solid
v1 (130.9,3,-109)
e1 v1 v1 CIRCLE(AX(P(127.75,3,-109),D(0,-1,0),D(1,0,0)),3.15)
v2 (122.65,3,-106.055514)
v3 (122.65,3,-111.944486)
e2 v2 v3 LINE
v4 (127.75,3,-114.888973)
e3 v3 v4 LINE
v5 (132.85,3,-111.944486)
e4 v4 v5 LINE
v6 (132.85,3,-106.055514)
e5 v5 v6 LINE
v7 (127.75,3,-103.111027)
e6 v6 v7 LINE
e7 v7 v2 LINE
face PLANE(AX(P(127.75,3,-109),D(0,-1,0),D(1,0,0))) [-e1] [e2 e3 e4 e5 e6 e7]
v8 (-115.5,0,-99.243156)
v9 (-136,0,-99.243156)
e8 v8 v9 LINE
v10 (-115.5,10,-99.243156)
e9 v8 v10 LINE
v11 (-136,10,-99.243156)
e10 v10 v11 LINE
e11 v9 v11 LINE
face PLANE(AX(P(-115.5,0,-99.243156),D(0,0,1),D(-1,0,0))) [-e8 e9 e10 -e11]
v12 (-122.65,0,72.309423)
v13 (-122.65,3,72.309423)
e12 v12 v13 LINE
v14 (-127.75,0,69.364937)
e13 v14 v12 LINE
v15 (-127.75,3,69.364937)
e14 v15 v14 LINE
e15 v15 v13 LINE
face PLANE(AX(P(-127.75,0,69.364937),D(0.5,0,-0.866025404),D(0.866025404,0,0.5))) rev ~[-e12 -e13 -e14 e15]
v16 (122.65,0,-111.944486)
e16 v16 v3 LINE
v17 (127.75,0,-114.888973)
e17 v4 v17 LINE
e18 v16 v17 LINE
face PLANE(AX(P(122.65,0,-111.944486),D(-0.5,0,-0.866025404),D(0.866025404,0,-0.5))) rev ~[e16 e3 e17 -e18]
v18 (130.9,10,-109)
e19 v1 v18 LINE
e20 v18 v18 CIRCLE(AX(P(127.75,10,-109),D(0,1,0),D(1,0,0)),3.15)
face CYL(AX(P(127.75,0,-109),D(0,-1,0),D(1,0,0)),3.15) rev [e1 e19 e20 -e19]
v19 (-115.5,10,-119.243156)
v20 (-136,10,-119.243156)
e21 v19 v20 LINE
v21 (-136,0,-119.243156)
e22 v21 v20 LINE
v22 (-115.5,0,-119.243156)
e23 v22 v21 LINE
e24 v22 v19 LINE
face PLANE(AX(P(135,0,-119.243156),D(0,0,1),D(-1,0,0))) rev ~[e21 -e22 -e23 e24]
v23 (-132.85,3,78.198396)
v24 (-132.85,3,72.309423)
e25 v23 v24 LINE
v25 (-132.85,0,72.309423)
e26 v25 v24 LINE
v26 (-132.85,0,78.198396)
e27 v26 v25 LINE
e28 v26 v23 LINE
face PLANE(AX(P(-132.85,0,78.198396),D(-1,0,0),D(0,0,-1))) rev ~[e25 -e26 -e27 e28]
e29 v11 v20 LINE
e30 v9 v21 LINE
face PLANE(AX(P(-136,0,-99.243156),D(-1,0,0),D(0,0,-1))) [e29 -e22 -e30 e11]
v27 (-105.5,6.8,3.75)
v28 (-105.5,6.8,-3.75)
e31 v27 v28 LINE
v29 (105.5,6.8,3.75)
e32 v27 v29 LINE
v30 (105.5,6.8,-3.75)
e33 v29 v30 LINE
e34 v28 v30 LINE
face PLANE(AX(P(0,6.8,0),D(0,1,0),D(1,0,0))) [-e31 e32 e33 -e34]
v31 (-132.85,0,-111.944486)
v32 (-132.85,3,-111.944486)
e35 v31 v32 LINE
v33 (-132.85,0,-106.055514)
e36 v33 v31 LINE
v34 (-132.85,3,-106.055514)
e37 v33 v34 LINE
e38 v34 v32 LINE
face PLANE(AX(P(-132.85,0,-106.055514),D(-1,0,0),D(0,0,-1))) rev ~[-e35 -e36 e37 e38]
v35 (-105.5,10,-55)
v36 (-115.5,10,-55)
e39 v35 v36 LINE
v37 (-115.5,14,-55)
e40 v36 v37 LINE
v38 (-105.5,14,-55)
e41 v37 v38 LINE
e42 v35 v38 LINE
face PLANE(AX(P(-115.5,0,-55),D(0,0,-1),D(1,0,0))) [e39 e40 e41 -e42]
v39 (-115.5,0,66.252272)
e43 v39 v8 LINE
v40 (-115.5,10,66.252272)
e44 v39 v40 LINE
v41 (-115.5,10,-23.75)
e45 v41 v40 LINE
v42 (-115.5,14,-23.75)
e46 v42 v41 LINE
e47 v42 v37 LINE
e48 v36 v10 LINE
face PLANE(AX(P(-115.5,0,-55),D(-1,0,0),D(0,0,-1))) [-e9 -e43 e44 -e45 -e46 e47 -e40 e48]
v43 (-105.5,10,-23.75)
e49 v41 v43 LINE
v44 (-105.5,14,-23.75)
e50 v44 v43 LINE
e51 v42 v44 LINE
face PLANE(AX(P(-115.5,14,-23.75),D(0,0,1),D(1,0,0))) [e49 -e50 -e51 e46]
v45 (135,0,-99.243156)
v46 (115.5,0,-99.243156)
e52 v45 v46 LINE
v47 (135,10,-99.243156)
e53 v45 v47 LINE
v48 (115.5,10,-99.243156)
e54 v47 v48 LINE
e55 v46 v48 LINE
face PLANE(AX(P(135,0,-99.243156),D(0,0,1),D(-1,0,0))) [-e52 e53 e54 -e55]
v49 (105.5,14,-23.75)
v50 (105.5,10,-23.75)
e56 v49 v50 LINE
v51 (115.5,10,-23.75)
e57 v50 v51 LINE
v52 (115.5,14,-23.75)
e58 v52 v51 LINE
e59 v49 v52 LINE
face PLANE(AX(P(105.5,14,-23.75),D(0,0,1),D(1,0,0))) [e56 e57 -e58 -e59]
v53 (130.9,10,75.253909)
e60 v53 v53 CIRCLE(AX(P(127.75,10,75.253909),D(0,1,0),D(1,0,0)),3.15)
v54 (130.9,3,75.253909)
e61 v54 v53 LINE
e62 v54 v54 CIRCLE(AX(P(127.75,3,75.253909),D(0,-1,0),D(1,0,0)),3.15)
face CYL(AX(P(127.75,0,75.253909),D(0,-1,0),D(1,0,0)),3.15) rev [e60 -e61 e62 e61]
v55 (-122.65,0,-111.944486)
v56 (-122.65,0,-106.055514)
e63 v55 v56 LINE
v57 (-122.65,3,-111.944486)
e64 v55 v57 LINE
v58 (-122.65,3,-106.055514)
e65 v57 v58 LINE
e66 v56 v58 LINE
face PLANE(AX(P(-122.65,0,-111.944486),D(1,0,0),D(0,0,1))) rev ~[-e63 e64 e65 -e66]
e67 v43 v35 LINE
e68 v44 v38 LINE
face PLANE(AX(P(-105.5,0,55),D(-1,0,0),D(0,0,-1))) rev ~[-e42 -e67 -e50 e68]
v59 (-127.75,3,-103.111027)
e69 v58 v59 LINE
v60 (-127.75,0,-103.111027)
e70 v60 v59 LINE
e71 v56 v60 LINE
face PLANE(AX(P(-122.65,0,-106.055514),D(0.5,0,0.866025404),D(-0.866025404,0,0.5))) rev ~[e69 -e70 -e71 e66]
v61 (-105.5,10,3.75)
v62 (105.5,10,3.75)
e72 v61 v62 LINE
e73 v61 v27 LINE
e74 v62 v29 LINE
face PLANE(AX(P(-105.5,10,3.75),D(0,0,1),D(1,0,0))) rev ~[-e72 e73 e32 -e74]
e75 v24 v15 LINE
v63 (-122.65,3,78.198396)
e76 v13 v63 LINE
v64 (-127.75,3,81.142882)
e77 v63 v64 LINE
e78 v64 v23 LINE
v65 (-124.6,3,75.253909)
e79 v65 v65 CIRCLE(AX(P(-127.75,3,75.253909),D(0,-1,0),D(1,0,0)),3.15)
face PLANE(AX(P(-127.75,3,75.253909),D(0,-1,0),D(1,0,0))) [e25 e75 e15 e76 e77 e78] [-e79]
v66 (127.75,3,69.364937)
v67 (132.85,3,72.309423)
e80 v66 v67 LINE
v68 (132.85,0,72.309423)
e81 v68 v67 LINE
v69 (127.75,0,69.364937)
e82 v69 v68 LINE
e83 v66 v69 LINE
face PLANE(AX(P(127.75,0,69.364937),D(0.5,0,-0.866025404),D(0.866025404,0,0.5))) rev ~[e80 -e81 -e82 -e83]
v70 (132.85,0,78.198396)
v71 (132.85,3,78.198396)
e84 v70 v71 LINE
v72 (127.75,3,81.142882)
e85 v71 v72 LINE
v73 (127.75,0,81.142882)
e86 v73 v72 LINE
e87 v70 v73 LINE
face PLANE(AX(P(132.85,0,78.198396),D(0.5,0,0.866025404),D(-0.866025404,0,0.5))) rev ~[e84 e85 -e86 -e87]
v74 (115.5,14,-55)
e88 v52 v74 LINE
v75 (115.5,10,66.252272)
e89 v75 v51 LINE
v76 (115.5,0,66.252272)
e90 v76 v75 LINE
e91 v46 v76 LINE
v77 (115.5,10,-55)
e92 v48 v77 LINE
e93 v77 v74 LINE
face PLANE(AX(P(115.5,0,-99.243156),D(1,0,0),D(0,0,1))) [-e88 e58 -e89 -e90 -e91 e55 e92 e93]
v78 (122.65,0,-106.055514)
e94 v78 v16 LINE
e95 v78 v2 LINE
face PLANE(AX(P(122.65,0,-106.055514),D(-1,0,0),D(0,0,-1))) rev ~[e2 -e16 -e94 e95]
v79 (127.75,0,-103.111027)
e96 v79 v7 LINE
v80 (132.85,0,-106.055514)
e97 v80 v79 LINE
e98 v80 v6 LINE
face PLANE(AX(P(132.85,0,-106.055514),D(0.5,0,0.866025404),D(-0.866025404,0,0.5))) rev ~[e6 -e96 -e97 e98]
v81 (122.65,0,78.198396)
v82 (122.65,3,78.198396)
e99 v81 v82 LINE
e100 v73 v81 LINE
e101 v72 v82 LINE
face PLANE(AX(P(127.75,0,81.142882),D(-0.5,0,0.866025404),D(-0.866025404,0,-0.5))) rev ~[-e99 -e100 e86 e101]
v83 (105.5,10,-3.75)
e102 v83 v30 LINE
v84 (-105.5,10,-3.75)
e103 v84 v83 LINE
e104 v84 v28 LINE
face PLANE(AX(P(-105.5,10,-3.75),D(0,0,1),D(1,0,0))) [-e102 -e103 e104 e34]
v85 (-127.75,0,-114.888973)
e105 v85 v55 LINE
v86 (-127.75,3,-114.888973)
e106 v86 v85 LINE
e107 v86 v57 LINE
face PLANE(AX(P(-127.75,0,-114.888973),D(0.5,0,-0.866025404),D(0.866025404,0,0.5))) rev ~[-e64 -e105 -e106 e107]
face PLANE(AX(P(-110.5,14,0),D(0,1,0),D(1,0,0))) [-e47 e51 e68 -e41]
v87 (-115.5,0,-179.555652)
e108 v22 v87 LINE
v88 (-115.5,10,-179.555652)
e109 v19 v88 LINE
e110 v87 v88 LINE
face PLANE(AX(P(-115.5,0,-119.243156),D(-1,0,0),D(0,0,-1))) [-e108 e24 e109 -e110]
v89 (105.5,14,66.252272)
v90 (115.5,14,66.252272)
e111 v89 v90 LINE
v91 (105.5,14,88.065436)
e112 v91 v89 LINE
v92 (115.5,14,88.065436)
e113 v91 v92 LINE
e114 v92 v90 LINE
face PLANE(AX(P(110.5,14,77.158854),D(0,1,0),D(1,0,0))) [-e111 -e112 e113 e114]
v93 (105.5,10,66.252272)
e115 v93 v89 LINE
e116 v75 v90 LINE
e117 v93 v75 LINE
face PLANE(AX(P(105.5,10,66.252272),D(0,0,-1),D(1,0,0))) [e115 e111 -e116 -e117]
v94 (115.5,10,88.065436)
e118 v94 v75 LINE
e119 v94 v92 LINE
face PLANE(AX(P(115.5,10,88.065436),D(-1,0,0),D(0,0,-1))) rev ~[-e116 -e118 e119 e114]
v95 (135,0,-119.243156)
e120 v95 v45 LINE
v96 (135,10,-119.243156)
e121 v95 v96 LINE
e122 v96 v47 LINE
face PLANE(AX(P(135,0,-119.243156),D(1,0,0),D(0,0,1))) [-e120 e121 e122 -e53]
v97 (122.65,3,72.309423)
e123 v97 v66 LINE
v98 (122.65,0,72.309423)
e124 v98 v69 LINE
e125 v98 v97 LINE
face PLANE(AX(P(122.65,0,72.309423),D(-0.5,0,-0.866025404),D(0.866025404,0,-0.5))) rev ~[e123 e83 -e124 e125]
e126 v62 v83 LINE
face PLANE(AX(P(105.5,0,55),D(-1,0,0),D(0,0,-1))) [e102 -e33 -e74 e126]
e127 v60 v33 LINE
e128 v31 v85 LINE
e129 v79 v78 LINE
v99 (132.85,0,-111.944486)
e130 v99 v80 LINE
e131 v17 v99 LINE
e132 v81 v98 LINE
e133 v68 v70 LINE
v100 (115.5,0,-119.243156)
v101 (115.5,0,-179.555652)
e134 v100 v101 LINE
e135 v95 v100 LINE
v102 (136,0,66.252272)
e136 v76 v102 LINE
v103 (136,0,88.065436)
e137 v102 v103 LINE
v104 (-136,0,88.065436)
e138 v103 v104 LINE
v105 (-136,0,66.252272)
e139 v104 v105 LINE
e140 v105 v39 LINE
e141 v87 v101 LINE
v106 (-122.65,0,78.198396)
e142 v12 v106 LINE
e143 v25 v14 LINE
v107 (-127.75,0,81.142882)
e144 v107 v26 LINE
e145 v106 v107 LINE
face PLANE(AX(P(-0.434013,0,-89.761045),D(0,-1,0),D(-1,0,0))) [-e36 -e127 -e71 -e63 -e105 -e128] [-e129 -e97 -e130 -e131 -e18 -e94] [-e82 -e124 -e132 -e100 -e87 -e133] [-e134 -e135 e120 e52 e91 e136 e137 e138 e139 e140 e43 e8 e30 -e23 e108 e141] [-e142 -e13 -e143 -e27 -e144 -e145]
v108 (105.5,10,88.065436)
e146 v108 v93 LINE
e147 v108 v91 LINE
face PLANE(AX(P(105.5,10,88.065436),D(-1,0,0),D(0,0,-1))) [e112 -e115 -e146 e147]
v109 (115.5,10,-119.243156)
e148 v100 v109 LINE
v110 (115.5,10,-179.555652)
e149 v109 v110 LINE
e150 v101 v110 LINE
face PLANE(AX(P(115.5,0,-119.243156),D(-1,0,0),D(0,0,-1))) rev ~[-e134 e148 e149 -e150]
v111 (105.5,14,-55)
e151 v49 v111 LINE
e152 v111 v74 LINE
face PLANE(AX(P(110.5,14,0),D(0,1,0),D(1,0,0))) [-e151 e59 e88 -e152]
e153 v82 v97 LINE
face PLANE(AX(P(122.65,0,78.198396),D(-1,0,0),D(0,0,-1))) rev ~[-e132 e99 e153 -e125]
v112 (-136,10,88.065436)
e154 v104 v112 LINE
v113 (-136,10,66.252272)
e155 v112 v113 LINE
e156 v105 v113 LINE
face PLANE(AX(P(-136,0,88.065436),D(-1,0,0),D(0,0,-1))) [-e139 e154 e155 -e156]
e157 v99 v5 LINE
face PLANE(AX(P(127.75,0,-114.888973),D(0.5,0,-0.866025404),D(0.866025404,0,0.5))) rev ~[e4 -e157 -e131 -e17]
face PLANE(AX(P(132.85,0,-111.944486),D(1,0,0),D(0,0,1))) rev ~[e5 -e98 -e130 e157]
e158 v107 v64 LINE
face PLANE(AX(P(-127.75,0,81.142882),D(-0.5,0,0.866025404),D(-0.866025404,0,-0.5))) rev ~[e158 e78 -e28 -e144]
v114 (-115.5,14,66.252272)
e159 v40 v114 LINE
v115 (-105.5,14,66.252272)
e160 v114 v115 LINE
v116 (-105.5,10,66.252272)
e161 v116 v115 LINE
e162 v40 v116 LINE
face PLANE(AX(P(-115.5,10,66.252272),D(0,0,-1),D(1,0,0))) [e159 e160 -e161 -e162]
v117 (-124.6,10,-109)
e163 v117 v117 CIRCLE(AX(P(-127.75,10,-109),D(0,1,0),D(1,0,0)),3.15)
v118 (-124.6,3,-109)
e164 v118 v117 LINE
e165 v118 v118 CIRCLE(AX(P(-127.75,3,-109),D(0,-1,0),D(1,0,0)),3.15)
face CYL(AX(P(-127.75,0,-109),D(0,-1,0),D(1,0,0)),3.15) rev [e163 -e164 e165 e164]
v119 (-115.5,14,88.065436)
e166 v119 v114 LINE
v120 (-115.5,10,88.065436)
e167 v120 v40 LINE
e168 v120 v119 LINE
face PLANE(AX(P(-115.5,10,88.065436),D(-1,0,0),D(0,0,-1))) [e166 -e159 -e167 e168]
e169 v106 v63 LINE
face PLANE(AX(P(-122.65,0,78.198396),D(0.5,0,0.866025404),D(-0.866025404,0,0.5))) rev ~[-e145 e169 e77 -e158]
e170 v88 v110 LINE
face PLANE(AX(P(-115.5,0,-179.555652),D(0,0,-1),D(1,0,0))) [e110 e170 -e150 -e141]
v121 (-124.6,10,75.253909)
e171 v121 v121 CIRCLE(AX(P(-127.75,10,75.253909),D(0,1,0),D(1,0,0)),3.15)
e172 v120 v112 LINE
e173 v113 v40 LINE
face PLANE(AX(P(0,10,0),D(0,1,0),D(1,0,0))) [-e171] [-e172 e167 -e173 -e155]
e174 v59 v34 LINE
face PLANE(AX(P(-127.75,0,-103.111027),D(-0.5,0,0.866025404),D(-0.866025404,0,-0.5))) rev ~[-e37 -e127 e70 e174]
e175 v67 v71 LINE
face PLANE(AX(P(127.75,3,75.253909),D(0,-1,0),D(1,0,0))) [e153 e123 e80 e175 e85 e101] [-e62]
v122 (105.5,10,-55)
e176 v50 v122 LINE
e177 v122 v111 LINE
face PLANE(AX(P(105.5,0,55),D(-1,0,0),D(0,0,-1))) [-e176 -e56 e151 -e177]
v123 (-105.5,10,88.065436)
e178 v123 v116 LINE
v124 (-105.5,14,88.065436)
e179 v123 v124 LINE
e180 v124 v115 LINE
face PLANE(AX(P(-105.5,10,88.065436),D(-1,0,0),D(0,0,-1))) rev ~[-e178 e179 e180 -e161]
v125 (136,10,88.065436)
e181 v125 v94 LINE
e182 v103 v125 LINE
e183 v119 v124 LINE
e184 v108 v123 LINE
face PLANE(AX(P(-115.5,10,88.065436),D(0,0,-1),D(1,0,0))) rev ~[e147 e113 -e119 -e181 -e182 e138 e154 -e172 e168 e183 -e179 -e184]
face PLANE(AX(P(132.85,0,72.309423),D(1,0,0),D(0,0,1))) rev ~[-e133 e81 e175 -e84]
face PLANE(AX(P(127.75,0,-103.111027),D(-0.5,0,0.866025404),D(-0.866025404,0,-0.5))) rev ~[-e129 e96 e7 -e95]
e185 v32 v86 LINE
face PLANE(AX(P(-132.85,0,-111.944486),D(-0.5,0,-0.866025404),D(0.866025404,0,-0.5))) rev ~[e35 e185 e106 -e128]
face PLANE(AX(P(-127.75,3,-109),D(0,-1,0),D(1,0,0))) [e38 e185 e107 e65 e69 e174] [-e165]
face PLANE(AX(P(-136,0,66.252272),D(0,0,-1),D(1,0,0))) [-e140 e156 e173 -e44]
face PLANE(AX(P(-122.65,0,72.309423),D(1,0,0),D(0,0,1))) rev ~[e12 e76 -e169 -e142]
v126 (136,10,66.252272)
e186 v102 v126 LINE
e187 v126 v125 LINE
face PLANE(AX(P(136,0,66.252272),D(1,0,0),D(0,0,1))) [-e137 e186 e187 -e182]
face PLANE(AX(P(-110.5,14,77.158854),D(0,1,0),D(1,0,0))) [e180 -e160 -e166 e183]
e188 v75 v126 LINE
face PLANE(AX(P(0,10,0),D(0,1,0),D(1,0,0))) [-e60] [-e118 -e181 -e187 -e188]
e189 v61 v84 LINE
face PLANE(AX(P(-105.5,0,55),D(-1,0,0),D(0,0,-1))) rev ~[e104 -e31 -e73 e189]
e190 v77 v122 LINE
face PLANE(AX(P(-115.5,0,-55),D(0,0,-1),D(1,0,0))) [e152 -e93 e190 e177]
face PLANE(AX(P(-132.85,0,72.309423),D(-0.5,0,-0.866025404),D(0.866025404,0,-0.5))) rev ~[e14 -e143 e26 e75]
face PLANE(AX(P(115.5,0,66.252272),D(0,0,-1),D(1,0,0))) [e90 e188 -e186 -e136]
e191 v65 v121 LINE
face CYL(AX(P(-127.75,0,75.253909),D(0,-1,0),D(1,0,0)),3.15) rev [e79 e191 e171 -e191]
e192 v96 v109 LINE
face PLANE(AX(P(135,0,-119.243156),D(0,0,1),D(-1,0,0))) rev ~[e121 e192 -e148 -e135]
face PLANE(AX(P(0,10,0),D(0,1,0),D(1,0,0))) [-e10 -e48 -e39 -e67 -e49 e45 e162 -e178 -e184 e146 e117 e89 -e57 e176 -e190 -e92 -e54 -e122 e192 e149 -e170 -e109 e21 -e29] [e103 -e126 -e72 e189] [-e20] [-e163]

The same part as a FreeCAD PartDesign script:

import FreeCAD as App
import Part
import Sketcher
from FreeCAD import Vector
Q = App.Units.Quantity

doc = App.newDocument("Part")
params = doc.addObject("Spreadsheet::Sheet", "Params")
for row, (alias, value) in enumerate([
    ("sketch1_width", "211 mm"),
    ("sketch1_height", "110 mm"),
    ("pad1_length", "10 mm"),
    ("sketch2_width", "10 mm"),
    ("sketch2_height", "110 mm"),
    ("pad2_length", "14 mm"),
    ("sketch3_width", "211 mm"),
    ("sketch3_height", "7.5 mm"),
    ("pocket1_length", "3.2 mm"),
    ("sketch4_diameter", "6.3 mm"),
    ("sketch4_width", "271 mm"),
    ("sketch4_width2", "231 mm"),
    ("sketch4_width3", "272 mm"),
    ("sketch4_height", "20 mm"),
    ("pad3_length", "10 mm"),
    ("pocket2_length", "2 mm"),
    ("sketch6_width", "10 mm"),
    ("pad4_length", "4 mm"),
    ("sketch7_width", "10 mm"),
    ("sketch7_height", "78.75 mm"),
    ("pocket3_length", "4 mm"),
    ("pocket4_length", "3 mm"),
    ("sketch9_width", "231 mm"),
    ("pad5_length", "10 mm"),
], start=1):
    params.set(f"A{row}", alias)
    params.set(f"B{row}", "=" + value)
    params.setAlias(f"B{row}", alias)

body = doc.addObject("PartDesign::Body", "Body")

# Sketch on XZ plane
sketch1 = body.newObject("Sketcher::SketchObject", "Sketch")
sketch1.AttachmentSupport = (doc.getObject("XZ_Plane"), [""])
sketch1.MapMode = "FlatFace"
sketch1.addGeometry([
    Part.LineSegment(Vector(-106, -55, 0), Vector(-106, 55, 0)),
    Part.LineSegment(Vector(-106, 55, 0), Vector(106, 55, 0)),
    Part.LineSegment(Vector(106, 55, 0), Vector(106, -55, 0)),
    Part.LineSegment(Vector(106, -55, 0), Vector(-106, -55, 0)),
], False)
sketch1.addConstraint([
    Sketcher.Constraint("Coincident", 0, 2, 1, 1),
    Sketcher.Constraint("Coincident", 1, 2, 2, 1),
    Sketcher.Constraint("Coincident", 2, 2, 3, 1),
    Sketcher.Constraint("Coincident", 3, 2, 0, 1),
    Sketcher.Constraint("Vertical", 0),
    Sketcher.Constraint("Horizontal", 1),
    Sketcher.Constraint("Vertical", 2),
    Sketcher.Constraint("Horizontal", 3),
    Sketcher.Constraint("Symmetric", 0, 2, 2, 2, -1, 1),
    Sketcher.Constraint("DistanceX", 1, 1, 1, 2, 211.0),
    Sketcher.Constraint("DistanceY", 0, 1, 0, 2, 110.0),
])
sketch1.setExpression("Constraints[9]", "Params.sketch1_width")
sketch1.setExpression("Constraints[10]", "Params.sketch1_height")
pad1 = body.newObject("PartDesign::Pad", "Pad")
pad1.Profile = sketch1
pad1.setExpression("Length", "Params.pad1_length")
pad1.Reversed = True

# Sketch on XZ plane
sketch2 = body.newObject("Sketcher::SketchObject", "Sketch001")
sketch2.AttachmentSupport = (doc.getObject("XZ_Plane"), [""])
sketch2.MapMode = "FlatFace"
sketch2.addGeometry([
    Part.LineSegment(Vector(-116, -55, 0), Vector(-116, 55, 0)),  # 0
    Part.LineSegment(Vector(-116, 55, 0), Vector(-106, 55, 0)),  # 1
    Part.LineSegment(Vector(-106, 55, 0), Vector(-106, -55, 0)),  # 2
    Part.LineSegment(Vector(-106, -55, 0), Vector(-116, -55, 0)),  # 3
    Part.LineSegment(Vector(106, -55, 0), Vector(106, 55, 0)),  # 4
    Part.LineSegment(Vector(106, 55, 0), Vector(116, 55, 0)),  # 5
    Part.LineSegment(Vector(116, 55, 0), Vector(116, -55, 0)),  # 6
    Part.LineSegment(Vector(116, -55, 0), Vector(106, -55, 0)),  # 7
], False)
sketch2.addConstraint([
    Sketcher.Constraint("Coincident", 0, 2, 1, 1),
    Sketcher.Constraint("Coincident", 1, 2, 2, 1),
    Sketcher.Constraint("Coincident", 2, 2, 3, 1),
    Sketcher.Constraint("Coincident", 3, 2, 0, 1),
    Sketcher.Constraint("Coincident", 4, 2, 5, 1),
    Sketcher.Constraint("Coincident", 5, 2, 6, 1),
    Sketcher.Constraint("Coincident", 6, 2, 7, 1),
    Sketcher.Constraint("Coincident", 7, 2, 4, 1),
    Sketcher.Constraint("Vertical", 0),
    Sketcher.Constraint("Horizontal", 1),
    Sketcher.Constraint("Vertical", 2),
    Sketcher.Constraint("Horizontal", 3),
    Sketcher.Constraint("Vertical", 4),
    Sketcher.Constraint("Horizontal", 5),
    Sketcher.Constraint("Vertical", 6),
    Sketcher.Constraint("Horizontal", 7),
    Sketcher.Constraint("Symmetric", 2, 2, 4, 2, -1, 1),
    Sketcher.Constraint("Symmetric", 0, 2, 6, 2, -1, 1),
    Sketcher.Constraint("Horizontal", 1, 2, 4, 2),
    Sketcher.Constraint("DistanceX", 1, 1, 1, 2, 10.0),
    Sketcher.Constraint("DistanceY", 0, 1, 0, 2, 110.0),
    Sketcher.Constraint("DistanceX", 1, 2, 4, 2, 211.0),
])
sketch2.setExpression("Constraints[19]", "Params.sketch2_width")
sketch2.setExpression("Constraints[20]", "Params.sketch2_height")
pad2 = body.newObject("PartDesign::Pad", "Pad001")
pad2.Profile = sketch2
pad2.setExpression("Length", "Params.pad2_length")
pad2.Reversed = True

# Sketch on XZ plane
sketch3 = body.newObject("Sketcher::SketchObject", "Sketch002")
sketch3.AttachmentSupport = (doc.getObject("XZ_Plane"), [""])
sketch3.MapMode = "FlatFace"
sketch3.AttachmentOffset = App.Placement(Vector(0, 0, -10), App.Rotation())
sketch3.addGeometry([
    Part.LineSegment(Vector(-106, -4, 0), Vector(-106, 4, 0)),
    Part.LineSegment(Vector(-106, 4, 0), Vector(106, 4, 0)),
    Part.LineSegment(Vector(106, 4, 0), Vector(106, -4, 0)),
    Part.LineSegment(Vector(106, -4, 0), Vector(-106, -4, 0)),
], False)
sketch3.addConstraint([
    Sketcher.Constraint("Coincident", 0, 2, 1, 1),
    Sketcher.Constraint("Coincident", 1, 2, 2, 1),
    Sketcher.Constraint("Coincident", 2, 2, 3, 1),
    Sketcher.Constraint("Coincident", 3, 2, 0, 1),
    Sketcher.Constraint("Vertical", 0),
    Sketcher.Constraint("Horizontal", 1),
    Sketcher.Constraint("Vertical", 2),
    Sketcher.Constraint("Horizontal", 3),
    Sketcher.Constraint("Symmetric", 0, 2, 2, 2, -1, 1),
    Sketcher.Constraint("DistanceX", 1, 1, 1, 2, 211.0),
    Sketcher.Constraint("DistanceY", 0, 1, 0, 2, 7.5),
])
sketch3.setExpression("Constraints[9]", "Params.sketch3_width")
sketch3.setExpression("Constraints[10]", "Params.sketch3_height")
pocket1 = body.newObject("PartDesign::Pocket", "Pocket")
pocket1.Profile = sketch3
pocket1.setExpression("Length", "Params.pocket1_length")
pocket1.Reversed = True

# Sketch on XZ plane
sketch4 = body.newObject("Sketcher::SketchObject", "Sketch003")
sketch4.AttachmentSupport = (doc.getObject("XZ_Plane"), [""])
sketch4.MapMode = "FlatFace"
sketch4.addGeometry([
    Part.LineSegment(Vector(135, -119.2, 0), Vector(-136, -119.2, 0)),  # 0
    Part.LineSegment(Vector(-136, -119.2, 0), Vector(-136, -99.2, 0)),  # 1
    Part.LineSegment(Vector(-136, -99.2, 0), Vector(-115.5, -99.2, 0)),  # 2
    Part.LineSegment(Vector(-115.5, -99.2, 0), Vector(-115.5, -55, 0)),  # 3
    Part.LineSegment(Vector(-115.5, -55, 0), Vector(115.5, -55, 0)),  # 4
    Part.LineSegment(Vector(115.5, -55, 0), Vector(115.5, -99.2, 0)),  # 5
    Part.LineSegment(Vector(115.5, -99.2, 0), Vector(135, -99.2, 0)),  # 6
    Part.LineSegment(Vector(135, -99.2, 0), Vector(135, -119.2, 0)),  # 7
    Part.Circle(Vector(127.8, -109, 0), Vector(0, 0, 1), 3.1),  # 8
    Part.Circle(Vector(-127.8, -109, 0), Vector(0, 0, 1), 3.1),  # 9
    Part.LineSegment(Vector(-115.5, 66.3, 0), Vector(-136, 66.3, 0)),  # 10
    Part.LineSegment(Vector(-136, 66.3, 0), Vector(-136, 88.1, 0)),  # 11
    Part.LineSegment(Vector(-136, 88.1, 0), Vector(136, 88.1, 0)),  # 12
    Part.LineSegment(Vector(136, 88.1, 0), Vector(136, 66.3, 0)),  # 13
    Part.LineSegment(Vector(136, 66.3, 0), Vector(115.5, 66.3, 0)),  # 14
    Part.LineSegment(Vector(115.5, 66.3, 0), Vector(115.5, 55, 0)),  # 15
    Part.LineSegment(Vector(115.5, 55, 0), Vector(-115.5, 55, 0)),  # 16
    Part.LineSegment(Vector(-115.5, 55, 0), Vector(-115.5, 66.3, 0)),  # 17
    Part.Circle(Vector(127.8, 75.3, 0), Vector(0, 0, 1), 3.1),  # 18
    Part.Circle(Vector(-127.8, 75.3, 0), Vector(0, 0, 1), 3.1),  # 19
], False)
sketch4.addConstraint([
    Sketcher.Constraint("Coincident", 0, 2, 1, 1),
    Sketcher.Constraint("Coincident", 1, 2, 2, 1),
    Sketcher.Constraint("Coincident", 2, 2, 3, 1),
    Sketcher.Constraint("Coincident", 3, 2, 4, 1),
    Sketcher.Constraint("Coincident", 4, 2, 5, 1),
    Sketcher.Constraint("Coincident", 5, 2, 6, 1),
    Sketcher.Constraint("Coincident", 6, 2, 7, 1),
    Sketcher.Constraint("Coincident", 7, 2, 0, 1),
    Sketcher.Constraint("Coincident", 10, 2, 11, 1),
    Sketcher.Constraint("Coincident", 11, 2, 12, 1),
    Sketcher.Constraint("Coincident", 12, 2, 13, 1),
    Sketcher.Constraint("Coincident", 13, 2, 14, 1),
    Sketcher.Constraint("Coincident", 14, 2, 15, 1),
    Sketcher.Constraint("Coincident", 15, 2, 16, 1),
    Sketcher.Constraint("Coincident", 16, 2, 17, 1),
    Sketcher.Constraint("Coincident", 17, 2, 10, 1),
    Sketcher.Constraint("Horizontal", 0),
    Sketcher.Constraint("Vertical", 1),
    Sketcher.Constraint("Horizontal", 2),
    Sketcher.Constraint("Vertical", 3),
    Sketcher.Constraint("Horizontal", 4),
    Sketcher.Constraint("Vertical", 5),
    Sketcher.Constraint("Horizontal", 6),
    Sketcher.Constraint("Vertical", 7),
    Sketcher.Constraint("Horizontal", 10),
    Sketcher.Constraint("Vertical", 11),
    Sketcher.Constraint("Horizontal", 12),
    Sketcher.Constraint("Vertical", 13),
    Sketcher.Constraint("Horizontal", 14),
    Sketcher.Constraint("Vertical", 15),
    Sketcher.Constraint("Horizontal", 16),
    Sketcher.Constraint("Vertical", 17),
    Sketcher.Constraint("Equal", 8, 9),
    Sketcher.Constraint("Equal", 9, 18),
    Sketcher.Constraint("Equal", 18, 19),
    Sketcher.Constraint("Symmetric", 3, 2, 15, 2, -1, 1),
    Sketcher.Constraint("Symmetric", 8, 3, 9, 3, -2),
    Sketcher.Constraint("Symmetric", 18, 3, 19, 3, -2),
    Sketcher.Constraint("Symmetric", 2, 2, 5, 2, -2),
    Sketcher.Constraint("Symmetric", 10, 2, 13, 2, -2),
    Sketcher.Constraint("Vertical", 8, 3, 18, 3),
    Sketcher.Constraint("Vertical", 1, 2, 10, 2),
    Sketcher.Constraint("Vertical", 3, 2, 16, 2),
    Sketcher.Constraint("Diameter", 8, 6.3),
    Sketcher.Constraint("DistanceX", 0, 2, 0, 1, 271.0),
    Sketcher.Constraint("DistanceX", 4, 1, 4, 2, 231.0),
    Sketcher.Constraint("DistanceX", 12, 1, 12, 2, 272.0),
    Sketcher.Constraint("DistanceY", 1, 1, 1, 2, 20.0),
    Sketcher.Constraint("DistanceY", 8, 3, -1, 1, 109.0),
    Sketcher.Constraint("DistanceY", 3, 2, -1, 1, 55.0),
    Sketcher.Constraint("DistanceX", 9, 3, 8, 3, 255.5),
    Sketcher.Constraint("DistanceY", 15, 2, 15, 1, 11.252272),
    Sketcher.Constraint("DistanceY", 3, 1, 3, 2, 44.243156),
    Sketcher.Constraint("DistanceY", 11, 1, 11, 2, 21.813164),
    Sketcher.Constraint("DistanceY", -1, 1, 18, 3, 75.253909),
])
sketch4.setExpression("Constraints[43]", "Params.sketch4_diameter")
sketch4.setExpression("Constraints[44]", "Params.sketch4_width")
sketch4.setExpression("Constraints[45]", "Params.sketch4_width2")
sketch4.setExpression("Constraints[46]", "Params.sketch4_width3")
sketch4.setExpression("Constraints[47]", "Params.sketch4_height")
pad3 = body.newObject("PartDesign::Pad", "Pad002")
pad3.Profile = sketch4
pad3.setExpression("Length", "Params.pad3_length")
pad3.Reversed = True

# Sketch on XZ plane
sketch5 = body.newObject("Sketcher::SketchObject", "Sketch004")
sketch5.AttachmentSupport = (doc.getObject("XZ_Plane"), [""])
sketch5.MapMode = "FlatFace"
sketch5.addGeometry([
    Part.LineSegment(Vector(-128, 69, 0), Vector(-123, 72, 0)),  # 0
    Part.LineSegment(Vector(-123, 72, 0), Vector(-123, 78, 0)),  # 1
    Part.LineSegment(Vector(-123, 78, 0), Vector(-128, 81, 0)),  # 2
    Part.LineSegment(Vector(-128, 81, 0), Vector(-133, 78, 0)),  # 3
    Part.LineSegment(Vector(-133, 78, 0), Vector(-133, 72, 0)),  # 4
    Part.LineSegment(Vector(-133, 72, 0), Vector(-128, 69, 0)),  # 5
    Part.LineSegment(Vector(128, 69, 0), Vector(133, 72, 0)),  # 6
    Part.LineSegment(Vector(133, 72, 0), Vector(133, 78, 0)),  # 7
    Part.LineSegment(Vector(133, 78, 0), Vector(128, 81, 0)),  # 8
    Part.LineSegment(Vector(128, 81, 0), Vector(123, 78, 0)),  # 9
    Part.LineSegment(Vector(123, 78, 0), Vector(123, 72, 0)),  # 10
    Part.LineSegment(Vector(123, 72, 0), Vector(128, 69, 0)),  # 11
    Part.LineSegment(Vector(-128, -115, 0), Vector(-123, -112, 0)),  # 12
    Part.LineSegment(Vector(-123, -112, 0), Vector(-123, -106, 0)),  # 13
    Part.LineSegment(Vector(-123, -106, 0), Vector(-128, -103, 0)),  # 14
    Part.LineSegment(Vector(-128, -103, 0), Vector(-133, -106, 0)),  # 15
    Part.LineSegment(Vector(-133, -106, 0), Vector(-133, -112, 0)),  # 16
    Part.LineSegment(Vector(-133, -112, 0), Vector(-128, -115, 0)),  # 17
    Part.LineSegment(Vector(128, -115, 0), Vector(133, -112, 0)),  # 18
    Part.LineSegment(Vector(133, -112, 0), Vector(133, -106, 0)),  # 19
    Part.LineSegment(Vector(133, -106, 0), Vector(128, -103, 0)),  # 20
    Part.LineSegment(Vector(128, -103, 0), Vector(123, -106, 0)),  # 21
    Part.LineSegment(Vector(123, -106, 0), Vector(123, -112, 0)),  # 22
    Part.LineSegment(Vector(123, -112, 0), Vector(128, -115, 0)),  # 23
], False)
sketch5.addConstraint([
    Sketcher.Constraint("Coincident", 0, 2, 1, 1),
    Sketcher.Constraint("Coincident", 1, 2, 2, 1),
    Sketcher.Constraint("Coincident", 2, 2, 3, 1),
    Sketcher.Constraint("Coincident", 3, 2, 4, 1),
    Sketcher.Constraint("Coincident", 4, 2, 5, 1),
    Sketcher.Constraint("Coincident", 5, 2, 0, 1),
    Sketcher.Constraint("Coincident", 6, 2, 7, 1),
    Sketcher.Constraint("Coincident", 7, 2, 8, 1),
    Sketcher.Constraint("Coincident", 8, 2, 9, 1),
    Sketcher.Constraint("Coincident", 9, 2, 10, 1),
    Sketcher.Constraint("Coincident", 10, 2, 11, 1),
    Sketcher.Constraint("Coincident", 11, 2, 6, 1),
    Sketcher.Constraint("Coincident", 12, 2, 13, 1),
    Sketcher.Constraint("Coincident", 13, 2, 14, 1),
    Sketcher.Constraint("Coincident", 14, 2, 15, 1),
    Sketcher.Constraint("Coincident", 15, 2, 16, 1),
    Sketcher.Constraint("Coincident", 16, 2, 17, 1),
    Sketcher.Constraint("Coincident", 17, 2, 12, 1),
    Sketcher.Constraint("Coincident", 18, 2, 19, 1),
    Sketcher.Constraint("Coincident", 19, 2, 20, 1),
    Sketcher.Constraint("Coincident", 20, 2, 21, 1),
    Sketcher.Constraint("Coincident", 21, 2, 22, 1),
    Sketcher.Constraint("Coincident", 22, 2, 23, 1),
    Sketcher.Constraint("Coincident", 23, 2, 18, 1),
    Sketcher.Constraint("Vertical", 1),
    Sketcher.Constraint("Vertical", 4),
    Sketcher.Constraint("Vertical", 7),
    Sketcher.Constraint("Vertical", 10),
    Sketcher.Constraint("Vertical", 13),
    Sketcher.Constraint("Vertical", 16),
    Sketcher.Constraint("Vertical", 19),
    Sketcher.Constraint("Vertical", 22),
    Sketcher.Constraint("Symmetric", 4, 2, 6, 2, -2),
    Sketcher.Constraint("Symmetric", 2, 2, 8, 2, -2),
    Sketcher.Constraint("Symmetric", 1, 2, 9, 2, -2),
    Sketcher.Constraint("Symmetric", 5, 2, 11, 2, -2),
    Sketcher.Constraint("Symmetric", 16, 2, 18, 2, -2),
    Sketcher.Constraint("Symmetric", 14, 2, 20, 2, -2),
    Sketcher.Constraint("Symmetric", 13, 2, 21, 2, -2),
    Sketcher.Constraint("Symmetric", 17, 2, 23, 2, -2),
    Sketcher.Constraint("Parallel", 0, 3),
    Sketcher.Constraint("Parallel", 2, 5),
    Sketcher.Constraint("Parallel", 3, 6),
    Sketcher.Constraint("Parallel", 5, 8),
    Sketcher.Constraint("Parallel", 8, 11),
    Sketcher.Constraint("Parallel", 9, 12),
    Sketcher.Constraint("Parallel", 11, 14),
    Sketcher.Constraint("Parallel", 12, 15),
    Sketcher.Constraint("Parallel", 14, 17),
    Sketcher.Constraint("Parallel", 17, 20),
    Sketcher.Constraint("Parallel", 20, 23),
    Sketcher.Constraint("Horizontal", 1, 2, 3, 2),
    Sketcher.Constraint("Horizontal", 0, 2, 4, 2),
    Sketcher.Constraint("Horizontal", 13, 2, 15, 2),
    Sketcher.Constraint("Horizontal", 12, 2, 16, 2),
    Sketcher.Constraint("Vertical", 1, 2, 12, 2),
    Sketcher.Constraint("Vertical", 5, 2, 14, 2),
    Sketcher.Constraint("Equal", 10, 13),
    Sketcher.Constraint("Angle", 0, Q("30 deg")),
    Sketcher.Constraint("DistanceX", 2, 2, 1, 2, 5.1),
    Sketcher.Constraint("DistanceX", 0, 2, 6, 2, 255.5),
    Sketcher.Constraint("DistanceY", 1, 1, 1, 2, 5.888973),
    Sketcher.Constraint("DistanceY", 12, 2, 0, 2, 184.253909),
    Sketcher.Constraint("DistanceY", -1, 1, 0, 2, 72.309423),
])
pocket2 = body.newObject("PartDesign::Pocket", "Pocket001")
pocket2.Profile = sketch5
pocket2.setExpression("Length", "Params.pocket2_length")

# Sketch on XZ plane
sketch6 = body.newObject("Sketcher::SketchObject", "Sketch005")
sketch6.AttachmentSupport = (doc.getObject("XZ_Plane"), [""])
sketch6.MapMode = "FlatFace"
sketch6.AttachmentOffset = App.Placement(Vector(0, 0, -10), App.Rotation())
sketch6.addGeometry([
    Part.LineSegment(Vector(-116, 66, 0), Vector(-116, 88, 0)),  # 0
    Part.LineSegment(Vector(-116, 88, 0), Vector(-106, 88, 0)),  # 1
    Part.LineSegment(Vector(-106, 88, 0), Vector(-106, 66, 0)),  # 2
    Part.LineSegment(Vector(-106, 66, 0), Vector(-116, 66, 0)),  # 3
    Part.LineSegment(Vector(106, 66, 0), Vector(106, 88, 0)),  # 4
    Part.LineSegment(Vector(106, 88, 0), Vector(116, 88, 0)),  # 5
    Part.LineSegment(Vector(116, 88, 0), Vector(116, 66, 0)),  # 6
    Part.LineSegment(Vector(116, 66, 0), Vector(106, 66, 0)),  # 7
], False)
sketch6.addConstraint([
    Sketcher.Constraint("Coincident", 0, 2, 1, 1),
    Sketcher.Constraint("Coincident", 1, 2, 2, 1),
    Sketcher.Constraint("Coincident", 2, 2, 3, 1),
    Sketcher.Constraint("Coincident", 3, 2, 0, 1),
    Sketcher.Constraint("Coincident", 4, 2, 5, 1),
    Sketcher.Constraint("Coincident", 5, 2, 6, 1),
    Sketcher.Constraint("Coincident", 6, 2, 7, 1),
    Sketcher.Constraint("Coincident", 7, 2, 4, 1),
    Sketcher.Constraint("Vertical", 0),
    Sketcher.Constraint("Horizontal", 1),
    Sketcher.Constraint("Vertical", 2),
    Sketcher.Constraint("Horizontal", 3),
    Sketcher.Constraint("Vertical", 4),
    Sketcher.Constraint("Horizontal", 5),
    Sketcher.Constraint("Vertical", 6),
    Sketcher.Constraint("Horizontal", 7),
    Sketcher.Constraint("Symmetric", 1, 2, 4, 2, -2),
    Sketcher.Constraint("Symmetric", 3, 2, 6, 2, -2),
    Sketcher.Constraint("DistanceX", 1, 1, 1, 2, 10.0),
    Sketcher.Constraint("DistanceX", 1, 2, 4, 2, 211.0),
    Sketcher.Constraint("DistanceY", 0, 1, 0, 2, 21.813164),
    Sketcher.Constraint("DistanceY", -1, 1, 2, 2, 66.252272),
])
sketch6.setExpression("Constraints[18]", "Params.sketch6_width")
pad4 = body.newObject("PartDesign::Pad", "Pad003")
pad4.Profile = sketch6
pad4.setExpression("Length", "Params.pad4_length")
pad4.Reversed = True

# Sketch on XZ plane
sketch7 = body.newObject("Sketcher::SketchObject", "Sketch006")
sketch7.AttachmentSupport = (doc.getObject("XZ_Plane"), [""])
sketch7.MapMode = "FlatFace"
sketch7.AttachmentOffset = App.Placement(Vector(0, 0, -14), App.Rotation())
sketch7.addGeometry([
    Part.LineSegment(Vector(-116, -24, 0), Vector(-116, 55, 0)),  # 0
    Part.LineSegment(Vector(-116, 55, 0), Vector(-106, 55, 0)),  # 1
    Part.LineSegment(Vector(-106, 55, 0), Vector(-106, -24, 0)),  # 2
    Part.LineSegment(Vector(-106, -24, 0), Vector(-116, -24, 0)),  # 3
    Part.LineSegment(Vector(106, -24, 0), Vector(106, 55, 0)),  # 4
    Part.LineSegment(Vector(106, 55, 0), Vector(116, 55, 0)),  # 5
    Part.LineSegment(Vector(116, 55, 0), Vector(116, -24, 0)),  # 6
    Part.LineSegment(Vector(116, -24, 0), Vector(106, -24, 0)),  # 7
], False)
sketch7.addConstraint([
    Sketcher.Constraint("Coincident", 0, 2, 1, 1),
    Sketcher.Constraint("Coincident", 1, 2, 2, 1),
    Sketcher.Constraint("Coincident", 2, 2, 3, 1),
    Sketcher.Constraint("Coincident", 3, 2, 0, 1),
    Sketcher.Constraint("Coincident", 4, 2, 5, 1),
    Sketcher.Constraint("Coincident", 5, 2, 6, 1),
    Sketcher.Constraint("Coincident", 6, 2, 7, 1),
    Sketcher.Constraint("Coincident", 7, 2, 4, 1),
    Sketcher.Constraint("Vertical", 0),
    Sketcher.Constraint("Horizontal", 1),
    Sketcher.Constraint("Vertical", 2),
    Sketcher.Constraint("Horizontal", 3),
    Sketcher.Constraint("Vertical", 4),
    Sketcher.Constraint("Horizontal", 5),
    Sketcher.Constraint("Vertical", 6),
    Sketcher.Constraint("Horizontal", 7),
    Sketcher.Constraint("Symmetric", 1, 2, 4, 2, -2),
    Sketcher.Constraint("Symmetric", 3, 2, 6, 2, -2),
    Sketcher.Constraint("DistanceX", 1, 1, 1, 2, 10.0),
    Sketcher.Constraint("DistanceY", -1, 1, 0, 2, 55.0),
    Sketcher.Constraint("DistanceX", 1, 2, 4, 2, 211.0),
    Sketcher.Constraint("DistanceY", 0, 1, 0, 2, 78.75),
])
sketch7.setExpression("Constraints[18]", "Params.sketch7_width")
sketch7.setExpression("Constraints[21]", "Params.sketch7_height")
pocket3 = body.newObject("PartDesign::Pocket", "Pocket002")
pocket3.Profile = sketch7
pocket3.setExpression("Length", "Params.pocket3_length")
pocket3.Reversed = True

# Sketch on XZ plane
sketch8 = body.newObject("Sketcher::SketchObject", "Sketch007")
sketch8.AttachmentSupport = (doc.getObject("XZ_Plane"), [""])
sketch8.MapMode = "FlatFace"
sketch8.addGeometry([
    Part.LineSegment(Vector(-128, 69, 0), Vector(-123, 72, 0)),  # 0
    Part.LineSegment(Vector(-123, 72, 0), Vector(-123, 78, 0)),  # 1
    Part.LineSegment(Vector(-123, 78, 0), Vector(-128, 81, 0)),  # 2
    Part.LineSegment(Vector(-128, 81, 0), Vector(-133, 78, 0)),  # 3
    Part.LineSegment(Vector(-133, 78, 0), Vector(-133, 72, 0)),  # 4
    Part.LineSegment(Vector(-133, 72, 0), Vector(-128, 69, 0)),  # 5
    Part.LineSegment(Vector(128, 69, 0), Vector(133, 72, 0)),  # 6
    Part.LineSegment(Vector(133, 72, 0), Vector(133, 78, 0)),  # 7
    Part.LineSegment(Vector(133, 78, 0), Vector(128, 81, 0)),  # 8
    Part.LineSegment(Vector(128, 81, 0), Vector(123, 78, 0)),  # 9
    Part.LineSegment(Vector(123, 78, 0), Vector(123, 72, 0)),  # 10
    Part.LineSegment(Vector(123, 72, 0), Vector(128, 69, 0)),  # 11
    Part.LineSegment(Vector(-128, -115, 0), Vector(-123, -112, 0)),  # 12
    Part.LineSegment(Vector(-123, -112, 0), Vector(-123, -106, 0)),  # 13
    Part.LineSegment(Vector(-123, -106, 0), Vector(-128, -103, 0)),  # 14
    Part.LineSegment(Vector(-128, -103, 0), Vector(-133, -106, 0)),  # 15
    Part.LineSegment(Vector(-133, -106, 0), Vector(-133, -112, 0)),  # 16
    Part.LineSegment(Vector(-133, -112, 0), Vector(-128, -115, 0)),  # 17
    Part.LineSegment(Vector(128, -115, 0), Vector(133, -112, 0)),  # 18
    Part.LineSegment(Vector(133, -112, 0), Vector(133, -106, 0)),  # 19
    Part.LineSegment(Vector(133, -106, 0), Vector(128, -103, 0)),  # 20
    Part.LineSegment(Vector(128, -103, 0), Vector(123, -106, 0)),  # 21
    Part.LineSegment(Vector(123, -106, 0), Vector(123, -112, 0)),  # 22
    Part.LineSegment(Vector(123, -112, 0), Vector(128, -115, 0)),  # 23
], False)
sketch8.addConstraint([
    Sketcher.Constraint("Coincident", 0, 2, 1, 1),
    Sketcher.Constraint("Coincident", 1, 2, 2, 1),
    Sketcher.Constraint("Coincident", 2, 2, 3, 1),
    Sketcher.Constraint("Coincident", 3, 2, 4, 1),
    Sketcher.Constraint("Coincident", 4, 2, 5, 1),
    Sketcher.Constraint("Coincident", 5, 2, 0, 1),
    Sketcher.Constraint("Coincident", 6, 2, 7, 1),
    Sketcher.Constraint("Coincident", 7, 2, 8, 1),
    Sketcher.Constraint("Coincident", 8, 2, 9, 1),
    Sketcher.Constraint("Coincident", 9, 2, 10, 1),
    Sketcher.Constraint("Coincident", 10, 2, 11, 1),
    Sketcher.Constraint("Coincident", 11, 2, 6, 1),
    Sketcher.Constraint("Coincident", 12, 2, 13, 1),
    Sketcher.Constraint("Coincident", 13, 2, 14, 1),
    Sketcher.Constraint("Coincident", 14, 2, 15, 1),
    Sketcher.Constraint("Coincident", 15, 2, 16, 1),
    Sketcher.Constraint("Coincident", 16, 2, 17, 1),
    Sketcher.Constraint("Coincident", 17, 2, 12, 1),
    Sketcher.Constraint("Coincident", 18, 2, 19, 1),
    Sketcher.Constraint("Coincident", 19, 2, 20, 1),
    Sketcher.Constraint("Coincident", 20, 2, 21, 1),
    Sketcher.Constraint("Coincident", 21, 2, 22, 1),
    Sketcher.Constraint("Coincident", 22, 2, 23, 1),
    Sketcher.Constraint("Coincident", 23, 2, 18, 1),
    Sketcher.Constraint("Vertical", 1),
    Sketcher.Constraint("Vertical", 4),
    Sketcher.Constraint("Vertical", 7),
    Sketcher.Constraint("Vertical", 10),
    Sketcher.Constraint("Vertical", 13),
    Sketcher.Constraint("Vertical", 16),
    Sketcher.Constraint("Vertical", 19),
    Sketcher.Constraint("Vertical", 22),
    Sketcher.Constraint("Symmetric", 4, 2, 6, 2, -2),
    Sketcher.Constraint("Symmetric", 2, 2, 8, 2, -2),
    Sketcher.Constraint("Symmetric", 1, 2, 9, 2, -2),
    Sketcher.Constraint("Symmetric", 5, 2, 11, 2, -2),
    Sketcher.Constraint("Symmetric", 16, 2, 18, 2, -2),
    Sketcher.Constraint("Symmetric", 14, 2, 20, 2, -2),
    Sketcher.Constraint("Symmetric", 13, 2, 21, 2, -2),
    Sketcher.Constraint("Symmetric", 17, 2, 23, 2, -2),
    Sketcher.Constraint("Parallel", 0, 3),
    Sketcher.Constraint("Parallel", 2, 5),
    Sketcher.Constraint("Parallel", 3, 6),
    Sketcher.Constraint("Parallel", 5, 8),
    Sketcher.Constraint("Parallel", 8, 11),
    Sketcher.Constraint("Parallel", 9, 12),
    Sketcher.Constraint("Parallel", 11, 14),
    Sketcher.Constraint("Parallel", 12, 15),
    Sketcher.Constraint("Parallel", 14, 17),
    Sketcher.Constraint("Parallel", 17, 20),
    Sketcher.Constraint("Parallel", 20, 23),
    Sketcher.Constraint("Horizontal", 1, 2, 3, 2),
    Sketcher.Constraint("Horizontal", 0, 2, 4, 2),
    Sketcher.Constraint("Horizontal", 13, 2, 15, 2),
    Sketcher.Constraint("Horizontal", 12, 2, 16, 2),
    Sketcher.Constraint("Vertical", 1, 2, 12, 2),
    Sketcher.Constraint("Vertical", 5, 2, 14, 2),
    Sketcher.Constraint("Equal", 10, 13),
    Sketcher.Constraint("Angle", 0, Q("30 deg")),
    Sketcher.Constraint("DistanceX", 2, 2, 1, 2, 5.1),
    Sketcher.Constraint("DistanceX", 0, 2, 6, 2, 255.5),
    Sketcher.Constraint("DistanceY", 1, 1, 1, 2, 5.888973),
    Sketcher.Constraint("DistanceY", 12, 2, 0, 2, 184.253909),
    Sketcher.Constraint("DistanceY", -1, 1, 0, 2, 72.309423),
])
pocket4 = body.newObject("PartDesign::Pocket", "Pocket003")
pocket4.Profile = sketch8
pocket4.setExpression("Length", "Params.pocket4_length")

# Sketch on XZ plane
sketch9 = body.newObject("Sketcher::SketchObject", "Sketch008")
sketch9.AttachmentSupport = (doc.getObject("XZ_Plane"), [""])
sketch9.MapMode = "FlatFace"
sketch9.addGeometry([
    Part.LineSegment(Vector(-116, -180, 0), Vector(-116, -119, 0)),
    Part.LineSegment(Vector(-116, -119, 0), Vector(116, -119, 0)),
    Part.LineSegment(Vector(116, -119, 0), Vector(116, -180, 0)),
    Part.LineSegment(Vector(116, -180, 0), Vector(-116, -180, 0)),
], False)
sketch9.addConstraint([
    Sketcher.Constraint("Coincident", 0, 2, 1, 1),
    Sketcher.Constraint("Coincident", 1, 2, 2, 1),
    Sketcher.Constraint("Coincident", 2, 2, 3, 1),
    Sketcher.Constraint("Coincident", 3, 2, 0, 1),
    Sketcher.Constraint("Vertical", 0),
    Sketcher.Constraint("Horizontal", 1),
    Sketcher.Constraint("Vertical", 2),
    Sketcher.Constraint("Horizontal", 3),
    Sketcher.Constraint("DistanceX", 1, 1, 1, 2, 231.0),
    Sketcher.Constraint("DistanceX", 0, 2, -1, 1, 115.5),
    Sketcher.Constraint("DistanceY", 0, 1, 0, 2, 60.312496),
    Sketcher.Constraint("DistanceY", 0, 2, -1, 1, 119.243156),
])
sketch9.setExpression("Constraints[8]", "Params.sketch9_width")
pad5 = body.newObject("PartDesign::Pad", "Pad004")
pad5.Profile = sketch9
pad5.setExpression("Length", "Params.pad5_length")
pad5.Reversed = True

doc.recompute()
